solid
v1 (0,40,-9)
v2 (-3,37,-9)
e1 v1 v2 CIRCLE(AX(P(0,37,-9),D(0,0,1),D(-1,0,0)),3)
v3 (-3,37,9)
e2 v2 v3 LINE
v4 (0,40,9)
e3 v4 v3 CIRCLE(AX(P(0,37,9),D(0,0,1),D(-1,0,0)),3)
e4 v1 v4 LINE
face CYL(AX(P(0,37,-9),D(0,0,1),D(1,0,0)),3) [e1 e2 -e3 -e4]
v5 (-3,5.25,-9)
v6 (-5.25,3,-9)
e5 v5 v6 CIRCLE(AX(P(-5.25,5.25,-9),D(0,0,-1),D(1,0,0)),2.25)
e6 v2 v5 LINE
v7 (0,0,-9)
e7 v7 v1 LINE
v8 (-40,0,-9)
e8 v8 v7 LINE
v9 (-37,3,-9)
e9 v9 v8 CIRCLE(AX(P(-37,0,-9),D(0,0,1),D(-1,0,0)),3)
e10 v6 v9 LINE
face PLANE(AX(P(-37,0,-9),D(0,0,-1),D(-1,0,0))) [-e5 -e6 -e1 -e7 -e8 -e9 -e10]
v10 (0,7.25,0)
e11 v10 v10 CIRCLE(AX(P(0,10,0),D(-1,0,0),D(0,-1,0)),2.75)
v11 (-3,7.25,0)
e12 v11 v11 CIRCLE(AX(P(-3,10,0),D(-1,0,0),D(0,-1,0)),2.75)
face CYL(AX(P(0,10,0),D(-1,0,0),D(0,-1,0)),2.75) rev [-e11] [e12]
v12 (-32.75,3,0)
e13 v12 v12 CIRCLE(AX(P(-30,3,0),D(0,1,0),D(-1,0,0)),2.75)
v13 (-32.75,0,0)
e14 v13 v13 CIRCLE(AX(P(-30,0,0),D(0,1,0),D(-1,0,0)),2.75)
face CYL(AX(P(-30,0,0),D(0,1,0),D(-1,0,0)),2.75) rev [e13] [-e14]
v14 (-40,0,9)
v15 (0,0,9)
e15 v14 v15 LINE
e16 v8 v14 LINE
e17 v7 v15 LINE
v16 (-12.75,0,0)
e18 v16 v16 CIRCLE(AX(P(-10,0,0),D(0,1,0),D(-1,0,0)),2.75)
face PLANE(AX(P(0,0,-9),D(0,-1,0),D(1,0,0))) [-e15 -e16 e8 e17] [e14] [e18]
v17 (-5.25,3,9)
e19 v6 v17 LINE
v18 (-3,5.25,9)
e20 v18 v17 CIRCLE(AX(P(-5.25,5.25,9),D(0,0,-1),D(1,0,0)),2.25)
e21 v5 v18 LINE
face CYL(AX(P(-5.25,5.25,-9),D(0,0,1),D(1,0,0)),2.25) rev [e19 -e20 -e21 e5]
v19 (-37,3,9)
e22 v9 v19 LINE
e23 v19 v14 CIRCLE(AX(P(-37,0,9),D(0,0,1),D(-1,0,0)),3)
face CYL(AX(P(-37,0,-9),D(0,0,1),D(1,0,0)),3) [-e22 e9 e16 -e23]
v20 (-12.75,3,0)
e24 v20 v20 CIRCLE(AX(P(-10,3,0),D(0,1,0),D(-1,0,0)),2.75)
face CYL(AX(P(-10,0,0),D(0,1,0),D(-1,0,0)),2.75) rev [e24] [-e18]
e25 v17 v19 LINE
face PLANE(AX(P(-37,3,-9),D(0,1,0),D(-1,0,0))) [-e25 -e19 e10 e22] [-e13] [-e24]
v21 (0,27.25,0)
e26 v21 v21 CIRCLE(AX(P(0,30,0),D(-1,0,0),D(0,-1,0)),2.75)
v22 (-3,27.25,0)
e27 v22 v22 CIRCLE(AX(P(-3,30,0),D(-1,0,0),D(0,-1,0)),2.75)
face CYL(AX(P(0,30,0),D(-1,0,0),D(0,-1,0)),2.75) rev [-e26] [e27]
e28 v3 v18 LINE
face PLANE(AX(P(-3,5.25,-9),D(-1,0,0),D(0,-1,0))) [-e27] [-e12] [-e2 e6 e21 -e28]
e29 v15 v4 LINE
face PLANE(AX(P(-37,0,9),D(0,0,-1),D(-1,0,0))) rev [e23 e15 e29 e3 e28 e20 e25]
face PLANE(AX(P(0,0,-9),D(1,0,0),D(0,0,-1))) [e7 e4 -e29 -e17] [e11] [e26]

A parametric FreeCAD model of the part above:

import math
import FreeCAD as App
import Part
import Sketcher

V = App.Vector

doc = App.newDocument("Part")
body = doc.addObject("PartDesign::Body", "Body")

# Sketch on XY plane
sketch1 = doc.addObject("Sketcher::SketchObject", "Sketch")
body.addObject(sketch1)
sketch1.AttachmentSupport = (doc.XY_Plane, [""])
sketch1.MapMode = "FlatFace"
sketch1.addGeometry([
    Part.LineSegment(V(0, 0, 0), V(0, 40, 0)),  # 0
    Part.ArcOfCircle(Part.Circle(V(0, 37, 0), V(0, 0, 1), 3), math.radians(90), math.radians(180)),  # 1
    Part.LineSegment(V(-3, 37, 0), V(-3, 5.2, 0)),  # 2
    Part.ArcOfCircle(Part.Circle(V(-5.2, 5.2, 0), V(0, 0, 1), 2.2), math.radians(-90), math.radians(0)),  # 3
    Part.LineSegment(V(-5.2, 3, 0), V(-37, 3, 0)),  # 4
    Part.ArcOfCircle(Part.Circle(V(-37, 0, 0), V(0, 0, 1), 3), math.radians(90), math.radians(180)),  # 5
    Part.LineSegment(V(-40, 0, 0), V(0, 0, 0)),  # 6
], False)
sketch1.addConstraint([
    Sketcher.Constraint("Coincident", 0, 2, 1, 1),
    Sketcher.Constraint("Tangent", 1, 2, 2, 1),
    Sketcher.Constraint("Tangent", 2, 2, 3, 2),
    Sketcher.Constraint("Tangent", 3, 1, 4, 1),
    Sketcher.Constraint("Tangent", 4, 2, 5, 1),
    Sketcher.Constraint("Coincident", 5, 2, 6, 1),
    Sketcher.Constraint("Coincident", 6, 2, 0, 1),
    Sketcher.Constraint("Vertical", 0),
    Sketcher.Constraint("Vertical", 2),
    Sketcher.Constraint("Horizontal", 4),
    Sketcher.Constraint("Horizontal", 6),
    Sketcher.Constraint("Coincident", 6, 2, -1, 1),
    Sketcher.Constraint("Equal", 1, 5),
    Sketcher.Constraint("PointOnObject", 1, 3, -2),
    Sketcher.Constraint("PointOnObject", 5, 3, -1),
    Sketcher.Constraint("Equal", 6, 0),
    Sketcher.Constraint("Radius", 1, 3.0),
    Sketcher.Constraint("DistanceX", 6, 1, 6, 2, 40.0),
    Sketcher.Constraint("Radius", 3, 2.25),
])
pad1 = doc.addObject("PartDesign::Pad", "Pad")
body.addObject(pad1)
pad1.Profile = sketch1
pad1.Length = 18
pad1.Midplane = True

# Sketch on XZ plane
sketch2 = doc.addObject("Sketcher::SketchObject", "Sketch001")
body.addObject(sketch2)
sketch2.AttachmentSupport = (doc.XZ_Plane, [""])
sketch2.MapMode = "FlatFace"
sketch2.AttachmentOffset = App.Placement(V(0, 0, -3), App.Rotation())
sketch2.addGeometry([
    Part.Circle(V(-10, 0, 0), V(0, 0, 1), 2.8),
    Part.Circle(V(-30, 0, 0), V(0, 0, 1), 2.8),
], False)
sketch2.addConstraint([
    Sketcher.Constraint("Equal", 0, 1),
    Sketcher.Constraint("PointOnObject", 0, 3, -1),
    Sketcher.Constraint("PointOnObject", 1, 3, -1),
    Sketcher.Constraint("Diameter", 0, 5.5),
    Sketcher.Constraint("DistanceX", 0, 3, -1, 1, 10.0),
    Sketcher.Constraint("DistanceX", 1, 3, -1, 1, 30.0),
])
pocket1 = doc.addObject("PartDesign::Pocket", "Pocket")
body.addObject(pocket1)
pocket1.Profile = sketch2
pocket1.Type = "ThroughAll"
pocket1.Reversed = True

# Sketch on YZ plane
sketch3 = doc.addObject("Sketcher::SketchObject", "Sketch002")
body.addObject(sketch3)
sketch3.AttachmentSupport = (doc.YZ_Plane, [""])
sketch3.MapMode = "FlatFace"
sketch3.AttachmentOffset = App.Placement(V(0, 0, -3), App.Rotation())
sketch3.addGeometry([
    Part.Circle(V(30, 0, 0), V(0, 0, 1), 2.8),
    Part.Circle(V(10, 0, 0), V(0, 0, 1), 2.8),
], False)
sketch3.addConstraint([
    Sketcher.Constraint("Equal", 0, 1),
    Sketcher.Constraint("PointOnObject", 0, 3, -1),
    Sketcher.Constraint("PointOnObject", 1, 3, -1),
    Sketcher.Constraint("Diameter", 0, 5.5),
    Sketcher.Constraint("DistanceX", -1, 1, 0, 3, 30.0),
    Sketcher.Constraint("DistanceX", -1, 1, 1, 3, 10.0),
])
pocket2 = doc.addObject("PartDesign::Pocket", "Pocket001")
body.addObject(pocket2)
pocket2.Profile = sketch3
pocket2.Type = "ThroughAll"
pocket2.Reversed = True

doc.recompute()
